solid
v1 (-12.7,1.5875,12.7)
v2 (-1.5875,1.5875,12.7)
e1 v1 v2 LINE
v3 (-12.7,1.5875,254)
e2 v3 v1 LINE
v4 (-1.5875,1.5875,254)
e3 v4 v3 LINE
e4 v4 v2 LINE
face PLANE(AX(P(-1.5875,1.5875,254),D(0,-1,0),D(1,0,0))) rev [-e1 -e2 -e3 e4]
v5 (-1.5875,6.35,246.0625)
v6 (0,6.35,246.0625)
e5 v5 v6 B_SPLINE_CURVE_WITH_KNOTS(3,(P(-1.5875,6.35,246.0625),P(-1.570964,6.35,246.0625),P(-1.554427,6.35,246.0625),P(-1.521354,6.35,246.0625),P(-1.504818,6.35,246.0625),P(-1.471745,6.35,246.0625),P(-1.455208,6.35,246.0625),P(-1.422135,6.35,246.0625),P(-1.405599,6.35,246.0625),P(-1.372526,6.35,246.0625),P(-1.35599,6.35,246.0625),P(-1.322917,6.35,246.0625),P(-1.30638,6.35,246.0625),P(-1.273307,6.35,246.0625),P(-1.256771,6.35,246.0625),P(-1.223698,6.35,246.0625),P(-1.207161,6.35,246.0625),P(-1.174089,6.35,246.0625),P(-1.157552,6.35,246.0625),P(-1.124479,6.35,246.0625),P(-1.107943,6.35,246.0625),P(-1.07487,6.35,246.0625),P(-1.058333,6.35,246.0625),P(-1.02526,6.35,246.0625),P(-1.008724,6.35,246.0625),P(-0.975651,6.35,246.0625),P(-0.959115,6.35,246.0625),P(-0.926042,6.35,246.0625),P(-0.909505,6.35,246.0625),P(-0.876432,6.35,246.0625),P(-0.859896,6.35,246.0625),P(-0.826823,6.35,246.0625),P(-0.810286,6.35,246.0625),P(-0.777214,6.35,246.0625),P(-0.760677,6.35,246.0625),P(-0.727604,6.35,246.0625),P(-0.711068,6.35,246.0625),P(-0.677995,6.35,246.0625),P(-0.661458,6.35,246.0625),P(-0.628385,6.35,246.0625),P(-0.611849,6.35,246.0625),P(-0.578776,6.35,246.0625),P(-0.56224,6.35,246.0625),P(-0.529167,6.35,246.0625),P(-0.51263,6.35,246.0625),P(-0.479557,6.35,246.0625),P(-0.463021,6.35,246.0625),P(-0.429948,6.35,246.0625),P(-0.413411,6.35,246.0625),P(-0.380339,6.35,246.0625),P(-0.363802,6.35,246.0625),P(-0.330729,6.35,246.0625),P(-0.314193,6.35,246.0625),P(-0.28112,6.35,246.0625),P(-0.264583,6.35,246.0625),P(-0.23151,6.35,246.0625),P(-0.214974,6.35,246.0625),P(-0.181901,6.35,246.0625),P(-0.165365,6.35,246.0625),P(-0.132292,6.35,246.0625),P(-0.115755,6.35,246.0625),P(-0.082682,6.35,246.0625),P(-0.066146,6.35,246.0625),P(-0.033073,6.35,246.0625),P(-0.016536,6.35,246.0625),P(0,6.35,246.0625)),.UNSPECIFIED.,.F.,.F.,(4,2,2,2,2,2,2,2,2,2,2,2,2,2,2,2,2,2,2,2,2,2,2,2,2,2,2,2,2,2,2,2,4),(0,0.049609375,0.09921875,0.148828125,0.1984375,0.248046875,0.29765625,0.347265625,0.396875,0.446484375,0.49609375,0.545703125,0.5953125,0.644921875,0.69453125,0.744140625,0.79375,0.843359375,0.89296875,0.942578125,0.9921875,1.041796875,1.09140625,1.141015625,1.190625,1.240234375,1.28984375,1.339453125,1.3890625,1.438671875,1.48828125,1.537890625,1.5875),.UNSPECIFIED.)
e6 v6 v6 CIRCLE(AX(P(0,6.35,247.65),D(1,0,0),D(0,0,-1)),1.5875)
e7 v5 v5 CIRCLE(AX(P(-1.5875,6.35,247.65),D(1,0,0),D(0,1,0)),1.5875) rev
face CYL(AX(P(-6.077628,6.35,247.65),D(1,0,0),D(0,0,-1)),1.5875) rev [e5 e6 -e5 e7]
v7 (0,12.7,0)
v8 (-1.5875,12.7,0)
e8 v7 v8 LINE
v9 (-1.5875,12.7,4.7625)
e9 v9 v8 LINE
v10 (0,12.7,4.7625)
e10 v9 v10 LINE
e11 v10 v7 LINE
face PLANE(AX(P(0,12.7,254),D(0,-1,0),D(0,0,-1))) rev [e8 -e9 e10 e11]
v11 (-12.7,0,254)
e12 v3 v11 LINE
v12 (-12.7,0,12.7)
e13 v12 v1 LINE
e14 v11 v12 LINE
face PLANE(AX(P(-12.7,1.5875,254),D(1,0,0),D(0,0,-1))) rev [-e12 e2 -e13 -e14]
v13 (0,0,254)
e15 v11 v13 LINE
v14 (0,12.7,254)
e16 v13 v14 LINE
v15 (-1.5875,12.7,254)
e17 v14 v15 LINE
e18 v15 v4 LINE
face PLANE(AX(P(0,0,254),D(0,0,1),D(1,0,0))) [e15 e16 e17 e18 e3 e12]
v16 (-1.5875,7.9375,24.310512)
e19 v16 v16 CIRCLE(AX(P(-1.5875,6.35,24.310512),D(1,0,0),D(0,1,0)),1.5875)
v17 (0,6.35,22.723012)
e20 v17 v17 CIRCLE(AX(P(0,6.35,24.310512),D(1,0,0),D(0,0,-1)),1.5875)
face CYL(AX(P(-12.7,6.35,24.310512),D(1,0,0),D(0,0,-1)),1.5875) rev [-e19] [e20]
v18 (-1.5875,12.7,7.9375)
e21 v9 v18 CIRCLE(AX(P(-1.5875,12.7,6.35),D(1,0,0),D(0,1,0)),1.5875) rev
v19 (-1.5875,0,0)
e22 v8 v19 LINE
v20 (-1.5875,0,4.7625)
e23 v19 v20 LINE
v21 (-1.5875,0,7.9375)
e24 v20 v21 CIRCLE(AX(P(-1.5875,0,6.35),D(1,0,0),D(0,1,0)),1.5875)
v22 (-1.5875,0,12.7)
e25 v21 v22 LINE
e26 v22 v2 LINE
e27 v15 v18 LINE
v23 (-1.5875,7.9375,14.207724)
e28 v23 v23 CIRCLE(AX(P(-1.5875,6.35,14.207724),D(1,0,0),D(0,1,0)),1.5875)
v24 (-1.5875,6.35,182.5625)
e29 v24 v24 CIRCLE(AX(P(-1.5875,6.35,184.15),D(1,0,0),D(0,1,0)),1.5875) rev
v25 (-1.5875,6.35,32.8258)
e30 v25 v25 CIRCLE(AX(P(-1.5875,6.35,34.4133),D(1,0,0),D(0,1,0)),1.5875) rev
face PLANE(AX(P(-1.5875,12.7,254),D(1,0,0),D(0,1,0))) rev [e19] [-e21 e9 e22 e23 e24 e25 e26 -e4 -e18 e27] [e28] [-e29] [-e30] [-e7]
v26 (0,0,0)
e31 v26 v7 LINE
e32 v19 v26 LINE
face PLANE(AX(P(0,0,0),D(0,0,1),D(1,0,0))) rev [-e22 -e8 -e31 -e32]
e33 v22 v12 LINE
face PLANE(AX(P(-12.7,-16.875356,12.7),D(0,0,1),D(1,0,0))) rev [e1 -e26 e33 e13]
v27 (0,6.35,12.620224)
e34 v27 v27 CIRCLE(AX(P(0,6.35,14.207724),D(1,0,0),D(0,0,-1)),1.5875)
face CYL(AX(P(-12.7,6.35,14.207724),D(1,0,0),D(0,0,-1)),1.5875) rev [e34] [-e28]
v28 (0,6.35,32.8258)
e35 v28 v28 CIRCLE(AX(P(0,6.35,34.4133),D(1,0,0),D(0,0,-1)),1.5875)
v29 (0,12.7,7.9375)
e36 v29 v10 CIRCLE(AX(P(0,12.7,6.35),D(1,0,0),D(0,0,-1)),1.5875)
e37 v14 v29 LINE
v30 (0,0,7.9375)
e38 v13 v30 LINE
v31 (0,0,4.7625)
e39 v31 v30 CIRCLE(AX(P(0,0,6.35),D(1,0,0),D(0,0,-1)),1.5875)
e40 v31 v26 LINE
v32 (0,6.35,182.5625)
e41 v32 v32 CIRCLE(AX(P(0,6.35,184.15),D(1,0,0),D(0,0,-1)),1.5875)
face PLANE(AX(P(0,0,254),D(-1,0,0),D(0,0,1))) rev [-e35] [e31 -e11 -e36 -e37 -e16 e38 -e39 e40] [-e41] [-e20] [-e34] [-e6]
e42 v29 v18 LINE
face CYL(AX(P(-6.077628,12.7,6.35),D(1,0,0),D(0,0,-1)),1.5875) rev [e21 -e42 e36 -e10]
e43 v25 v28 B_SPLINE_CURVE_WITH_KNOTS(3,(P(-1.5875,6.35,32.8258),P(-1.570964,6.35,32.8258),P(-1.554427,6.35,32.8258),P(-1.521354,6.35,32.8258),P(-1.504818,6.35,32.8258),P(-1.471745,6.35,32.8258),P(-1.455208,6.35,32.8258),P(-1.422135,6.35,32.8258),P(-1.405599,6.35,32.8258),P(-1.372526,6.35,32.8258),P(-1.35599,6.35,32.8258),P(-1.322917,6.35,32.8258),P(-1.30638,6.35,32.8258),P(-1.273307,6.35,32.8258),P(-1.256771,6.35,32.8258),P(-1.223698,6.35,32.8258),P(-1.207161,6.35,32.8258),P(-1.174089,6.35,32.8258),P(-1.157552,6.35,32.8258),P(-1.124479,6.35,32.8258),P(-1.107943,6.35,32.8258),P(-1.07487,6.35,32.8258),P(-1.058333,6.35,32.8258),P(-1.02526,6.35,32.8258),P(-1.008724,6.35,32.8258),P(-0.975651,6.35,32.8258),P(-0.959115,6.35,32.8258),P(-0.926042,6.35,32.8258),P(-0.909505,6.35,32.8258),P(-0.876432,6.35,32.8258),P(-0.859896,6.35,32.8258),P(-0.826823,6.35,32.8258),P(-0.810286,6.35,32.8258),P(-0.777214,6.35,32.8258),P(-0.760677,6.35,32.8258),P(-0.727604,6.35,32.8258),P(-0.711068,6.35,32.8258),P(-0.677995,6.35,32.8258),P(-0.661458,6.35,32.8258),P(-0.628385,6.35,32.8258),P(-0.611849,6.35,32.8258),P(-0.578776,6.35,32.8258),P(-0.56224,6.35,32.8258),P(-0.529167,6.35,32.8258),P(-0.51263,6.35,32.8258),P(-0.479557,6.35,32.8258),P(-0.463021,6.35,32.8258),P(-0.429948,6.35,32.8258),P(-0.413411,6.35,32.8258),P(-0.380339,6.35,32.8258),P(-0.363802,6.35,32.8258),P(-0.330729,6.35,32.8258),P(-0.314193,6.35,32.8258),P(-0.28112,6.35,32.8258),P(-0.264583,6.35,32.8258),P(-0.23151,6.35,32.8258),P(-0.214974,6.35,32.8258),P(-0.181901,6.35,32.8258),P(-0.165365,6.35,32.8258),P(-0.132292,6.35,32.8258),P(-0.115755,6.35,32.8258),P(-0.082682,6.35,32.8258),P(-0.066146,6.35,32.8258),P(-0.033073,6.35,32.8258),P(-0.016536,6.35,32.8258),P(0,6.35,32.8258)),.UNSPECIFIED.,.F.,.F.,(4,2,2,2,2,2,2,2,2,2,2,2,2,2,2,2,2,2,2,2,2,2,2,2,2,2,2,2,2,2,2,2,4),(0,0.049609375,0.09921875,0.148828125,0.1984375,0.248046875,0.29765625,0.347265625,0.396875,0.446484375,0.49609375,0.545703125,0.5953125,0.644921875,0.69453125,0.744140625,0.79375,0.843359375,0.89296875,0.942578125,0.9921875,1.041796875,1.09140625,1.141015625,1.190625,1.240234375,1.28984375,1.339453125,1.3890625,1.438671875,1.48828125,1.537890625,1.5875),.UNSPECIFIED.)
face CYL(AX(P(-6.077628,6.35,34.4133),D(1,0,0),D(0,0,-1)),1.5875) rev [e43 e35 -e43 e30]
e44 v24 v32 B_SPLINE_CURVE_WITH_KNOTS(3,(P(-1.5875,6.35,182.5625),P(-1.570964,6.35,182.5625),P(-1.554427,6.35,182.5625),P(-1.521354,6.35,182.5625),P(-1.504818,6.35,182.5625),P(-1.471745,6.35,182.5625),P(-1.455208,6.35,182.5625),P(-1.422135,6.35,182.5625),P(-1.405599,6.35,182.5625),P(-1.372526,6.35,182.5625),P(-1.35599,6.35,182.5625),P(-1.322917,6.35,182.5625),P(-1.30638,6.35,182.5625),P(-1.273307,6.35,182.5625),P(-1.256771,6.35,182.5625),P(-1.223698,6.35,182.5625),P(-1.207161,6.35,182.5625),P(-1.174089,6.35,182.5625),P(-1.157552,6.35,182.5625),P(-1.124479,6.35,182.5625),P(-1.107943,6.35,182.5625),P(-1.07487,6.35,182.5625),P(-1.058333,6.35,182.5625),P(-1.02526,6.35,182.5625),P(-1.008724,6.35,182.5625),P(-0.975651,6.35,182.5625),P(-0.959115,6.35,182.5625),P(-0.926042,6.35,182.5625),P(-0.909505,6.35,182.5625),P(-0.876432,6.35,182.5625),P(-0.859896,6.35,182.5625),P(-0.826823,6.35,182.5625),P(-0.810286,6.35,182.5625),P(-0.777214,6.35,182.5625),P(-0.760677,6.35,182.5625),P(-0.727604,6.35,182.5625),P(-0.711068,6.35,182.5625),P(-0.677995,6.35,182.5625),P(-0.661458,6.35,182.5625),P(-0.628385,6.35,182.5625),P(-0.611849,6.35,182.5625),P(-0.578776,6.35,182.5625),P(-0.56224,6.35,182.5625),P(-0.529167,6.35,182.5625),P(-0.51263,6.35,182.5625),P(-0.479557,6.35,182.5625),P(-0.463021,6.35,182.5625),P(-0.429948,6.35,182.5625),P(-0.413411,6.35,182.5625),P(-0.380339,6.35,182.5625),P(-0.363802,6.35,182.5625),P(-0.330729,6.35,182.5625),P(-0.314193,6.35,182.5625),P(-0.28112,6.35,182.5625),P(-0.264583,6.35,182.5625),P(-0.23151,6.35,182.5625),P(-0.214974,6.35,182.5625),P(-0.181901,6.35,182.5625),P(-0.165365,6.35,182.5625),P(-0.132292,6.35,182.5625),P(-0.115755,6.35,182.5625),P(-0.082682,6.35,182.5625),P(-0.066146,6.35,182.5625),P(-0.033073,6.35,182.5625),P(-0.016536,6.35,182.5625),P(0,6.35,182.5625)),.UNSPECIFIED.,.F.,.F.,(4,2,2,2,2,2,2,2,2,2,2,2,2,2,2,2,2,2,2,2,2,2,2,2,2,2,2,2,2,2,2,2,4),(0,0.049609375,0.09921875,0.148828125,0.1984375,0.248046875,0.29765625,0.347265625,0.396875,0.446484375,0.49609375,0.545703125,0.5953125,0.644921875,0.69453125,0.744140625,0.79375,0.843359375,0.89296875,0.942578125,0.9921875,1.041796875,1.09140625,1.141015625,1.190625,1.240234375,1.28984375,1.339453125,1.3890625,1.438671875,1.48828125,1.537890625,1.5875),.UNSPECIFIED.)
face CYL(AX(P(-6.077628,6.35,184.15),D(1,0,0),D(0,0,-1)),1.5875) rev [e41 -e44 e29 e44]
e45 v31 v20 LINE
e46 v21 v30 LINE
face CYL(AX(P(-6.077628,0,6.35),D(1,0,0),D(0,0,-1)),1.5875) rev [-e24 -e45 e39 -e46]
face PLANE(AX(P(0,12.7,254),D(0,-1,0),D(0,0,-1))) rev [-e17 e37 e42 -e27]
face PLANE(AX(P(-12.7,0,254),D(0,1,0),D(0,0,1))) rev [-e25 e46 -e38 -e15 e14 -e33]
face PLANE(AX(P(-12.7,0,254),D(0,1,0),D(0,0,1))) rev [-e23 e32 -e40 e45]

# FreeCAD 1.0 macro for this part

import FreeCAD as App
import Part
import Sketcher
Q = App.Units.Quantity

doc = App.newDocument("Part")
body = doc.addObject("PartDesign::Body", "Body")

# Sketch on XY plane
sketch1 = body.newObject("Sketcher::SketchObject", "Sketch")
sketch1.AttachmentSupport = (doc.getObject("XY_Plane"), [""])
sketch1.MapMode = "FlatFace"
sketch1.addGeometry([
    Part.LineSegment(App.Vector(0, 0, 0), App.Vector(0, 12.7, 0)),  # 0
    Part.LineSegment(App.Vector(0, 12.7, 0), App.Vector(-1.6, 12.7, 0)),  # 1
    Part.LineSegment(App.Vector(-1.6, 12.7, 0), App.Vector(-1.6, 1.6, 0)),  # 2
    Part.LineSegment(App.Vector(-1.6, 1.6, 0), App.Vector(-12.7, 1.6, 0)),  # 3
    Part.LineSegment(App.Vector(-12.7, 1.6, 0), App.Vector(-12.7, 0, 0)),  # 4
    Part.LineSegment(App.Vector(-12.7, 0, 0), App.Vector(0, 0, 0)),  # 5
], False)
sketch1.addConstraint([
    Sketcher.Constraint("Coincident", 0, 2, 1, 1),
    Sketcher.Constraint("Coincident", 1, 2, 2, 1),
    Sketcher.Constraint("Coincident", 2, 2, 3, 1),
    Sketcher.Constraint("Coincident", 3, 2, 4, 1),
    Sketcher.Constraint("Coincident", 4, 2, 5, 1),
    Sketcher.Constraint("Coincident", 5, 2, 0, 1),
    Sketcher.Constraint("Vertical", 0),
    Sketcher.Constraint("Horizontal", 1),
    Sketcher.Constraint("Vertical", 2),
    Sketcher.Constraint("Horizontal", 3),
    Sketcher.Constraint("Vertical", 4),
    Sketcher.Constraint("Horizontal", 5),
    Sketcher.Constraint("Coincident", 5, 2, -1, 1),
    Sketcher.Constraint("Equal", 5, 0),
    Sketcher.Constraint("Equal", 3, 2),
    Sketcher.Constraint("DistanceX", 5, 1, 5, 2, Q("0.5 in")),
    Sketcher.Constraint("DistanceX", 1, 2, 1, 1, Q("0.0625 in")),
])
pad1 = body.newObject("PartDesign::Pad", "Pad")
pad1.Profile = sketch1
pad1.Length = Q("10 in")

# Sketch on YZ plane
sketch2 = body.newObject("Sketcher::SketchObject", "Sketch001")
sketch2.AttachmentSupport = (doc.getObject("YZ_Plane"), [""])
sketch2.MapMode = "FlatFace"
sketch2.addGeometry([
    Part.Circle(App.Vector(6.3, 247.7, 0), App.Vector(0, 0, 1), 1.6),
    Part.Circle(App.Vector(6.3, 184.2, 0), App.Vector(0, 0, 1), 1.6),
], False)
sketch2.addConstraint([
    Sketcher.Constraint("Equal", 0, 1),
    Sketcher.Constraint("Vertical", 0, 3, 1, 3),
    Sketcher.Constraint("Diameter", 0, Q("0.125 in")),
    Sketcher.Constraint("DistanceY", 1, 3, 0, 3, Q("2.5 in")),
    Sketcher.Constraint("DistanceX", -1, 1, 0, 3, Q("0.25 in")),
    Sketcher.Constraint("DistanceY", -1, 1, 0, 3, Q("9.75 in")),
])
pocket1 = body.newObject("PartDesign::Pocket", "Pocket")
pocket1.Profile = sketch2
pocket1.Length = Q("0.0625 in")

# Sketch on YZ plane
sketch3 = body.newObject("Sketcher::SketchObject", "Sketch002")
sketch3.AttachmentSupport = (doc.getObject("YZ_Plane"), [""])
sketch3.MapMode = "FlatFace"
sketch3.addGeometry([
    Part.Circle(App.Vector(6.3, 24.3, 0), App.Vector(0, 0, 1), 1.6),
    Part.Circle(App.Vector(6.3, 14.2, 0), App.Vector(0, 0, 1), 1.6),
], False)
sketch3.addConstraint([
    Sketcher.Constraint("Equal", 0, 1),
    Sketcher.Constraint("Vertical", 0, 3, 1, 3),
    Sketcher.Constraint("Diameter", 0, Q("0.125 in")),
    Sketcher.Constraint("DistanceX", -1, 1, 0, 3, Q("0.25 in")),
    Sketcher.Constraint("DistanceY", 1, 3, 0, 3, Q("10.102788 mm")),
    Sketcher.Constraint("DistanceY", -1, 1, 0, 3, Q("24.310512 mm")),
])
pocket2 = body.newObject("PartDesign::Pocket", "Pocket001")
pocket2.Profile = sketch3
pocket2.Type = "ThroughAll"

# Sketch on XZ plane
sketch4 = body.newObject("Sketcher::SketchObject", "Sketch003")
sketch4.AttachmentSupport = (doc.getObject("XZ_Plane"), [""])
sketch4.MapMode = "FlatFace"
sketch4.AttachmentOffset = App.Placement(App.Vector(0, 0, -0.0625 * 25.4), App.Rotation())
sketch4.addGeometry([
    Part.LineSegment(App.Vector(-13, 0, 0), App.Vector(-13, 13, 0)),
    Part.LineSegment(App.Vector(-13, 13, 0), App.Vector(-2, 13, 0)),
    Part.LineSegment(App.Vector(-2, 13, 0), App.Vector(-2, 0, 0)),
    Part.LineSegment(App.Vector(-2, 0, 0), App.Vector(-13, 0, 0)),
], False)
sketch4.addConstraint([
    Sketcher.Constraint("Coincident", 0, 2, 1, 1),
    Sketcher.Constraint("Coincident", 1, 2, 2, 1),
    Sketcher.Constraint("Coincident", 2, 2, 3, 1),
    Sketcher.Constraint("Coincident", 3, 2, 0, 1),
    Sketcher.Constraint("Vertical", 0),
    Sketcher.Constraint("Horizontal", 1),
    Sketcher.Constraint("Vertical", 2),
    Sketcher.Constraint("Horizontal", 3),
    Sketcher.Constraint("PointOnObject", 2, 2, -1),
    Sketcher.Constraint("DistanceY", 0, 1, 0, 2, Q("0.5 in")),
    Sketcher.Constraint("DistanceX", 0, 2, -1, 1, Q("0.5 in")),
    Sketcher.Constraint("DistanceX", 1, 1, 1, 2, Q("0.4375 in")),
])
pocket3 = body.newObject("PartDesign::Pocket", "Pocket002")
pocket3.Profile = sketch4
pocket3.Length = Q("0.0625 in")
pocket3.Reversed = True

# Sketch on YZ plane
sketch5 = body.newObject("Sketcher::SketchObject", "Sketch004")
sketch5.AttachmentSupport = (doc.getObject("YZ_Plane"), [""])
sketch5.MapMode = "FlatFace"
sketch5.addGeometry([
    Part.Circle(App.Vector(12.7, 6.3, 0), App.Vector(0, 0, 1), 1.6),
    Part.Circle(App.Vector(0, 6.3, 0), App.Vector(0, 0, 1), 1.6),
], False)
sketch5.addConstraint([
    Sketcher.Constraint("Equal", 0, 1),
    Sketcher.Constraint("PointOnObject", 1, 3, -2),
    Sketcher.Constraint("Horizontal", 0, 3, 1, 3),
    Sketcher.Constraint("Diameter", 0, Q("0.125 in")),
    Sketcher.Constraint("DistanceX", -1, 1, 0, 3, Q("0.5 in")),
    Sketcher.Constraint("DistanceY", -1, 1, 0, 3, Q("0.25 in")),
])
pocket4 = body.newObject("PartDesign::Pocket", "Pocket003")
pocket4.Profile = sketch5
pocket4.Length = Q("0.0625 in")

# Sketch on YZ plane
sketch6 = body.newObject("Sketcher::SketchObject", "Sketch005")
sketch6.AttachmentSupport = (doc.getObject("YZ_Plane"), [""])
sketch6.MapMode = "FlatFace"
sketch6.addGeometry(Part.Circle(App.Vector(6.3, 34.4, 0), App.Vector(0, 0, 1), 1.6), False)
sketch6.addConstraint([
    Sketcher.Constraint("Diameter", 0, Q("0.125 in")),
    Sketcher.Constraint("DistanceX", -1, 1, 0, 3, Q("0.25 in")),
    Sketcher.Constraint("DistanceY", -1, 1, 0, 3, Q("34.4133 mm")),
])
pocket5 = body.newObject("PartDesign::Pocket", "Pocket004")
pocket5.Profile = sketch6
pocket5.Length = Q("0.0625 in")

doc.recompute()
